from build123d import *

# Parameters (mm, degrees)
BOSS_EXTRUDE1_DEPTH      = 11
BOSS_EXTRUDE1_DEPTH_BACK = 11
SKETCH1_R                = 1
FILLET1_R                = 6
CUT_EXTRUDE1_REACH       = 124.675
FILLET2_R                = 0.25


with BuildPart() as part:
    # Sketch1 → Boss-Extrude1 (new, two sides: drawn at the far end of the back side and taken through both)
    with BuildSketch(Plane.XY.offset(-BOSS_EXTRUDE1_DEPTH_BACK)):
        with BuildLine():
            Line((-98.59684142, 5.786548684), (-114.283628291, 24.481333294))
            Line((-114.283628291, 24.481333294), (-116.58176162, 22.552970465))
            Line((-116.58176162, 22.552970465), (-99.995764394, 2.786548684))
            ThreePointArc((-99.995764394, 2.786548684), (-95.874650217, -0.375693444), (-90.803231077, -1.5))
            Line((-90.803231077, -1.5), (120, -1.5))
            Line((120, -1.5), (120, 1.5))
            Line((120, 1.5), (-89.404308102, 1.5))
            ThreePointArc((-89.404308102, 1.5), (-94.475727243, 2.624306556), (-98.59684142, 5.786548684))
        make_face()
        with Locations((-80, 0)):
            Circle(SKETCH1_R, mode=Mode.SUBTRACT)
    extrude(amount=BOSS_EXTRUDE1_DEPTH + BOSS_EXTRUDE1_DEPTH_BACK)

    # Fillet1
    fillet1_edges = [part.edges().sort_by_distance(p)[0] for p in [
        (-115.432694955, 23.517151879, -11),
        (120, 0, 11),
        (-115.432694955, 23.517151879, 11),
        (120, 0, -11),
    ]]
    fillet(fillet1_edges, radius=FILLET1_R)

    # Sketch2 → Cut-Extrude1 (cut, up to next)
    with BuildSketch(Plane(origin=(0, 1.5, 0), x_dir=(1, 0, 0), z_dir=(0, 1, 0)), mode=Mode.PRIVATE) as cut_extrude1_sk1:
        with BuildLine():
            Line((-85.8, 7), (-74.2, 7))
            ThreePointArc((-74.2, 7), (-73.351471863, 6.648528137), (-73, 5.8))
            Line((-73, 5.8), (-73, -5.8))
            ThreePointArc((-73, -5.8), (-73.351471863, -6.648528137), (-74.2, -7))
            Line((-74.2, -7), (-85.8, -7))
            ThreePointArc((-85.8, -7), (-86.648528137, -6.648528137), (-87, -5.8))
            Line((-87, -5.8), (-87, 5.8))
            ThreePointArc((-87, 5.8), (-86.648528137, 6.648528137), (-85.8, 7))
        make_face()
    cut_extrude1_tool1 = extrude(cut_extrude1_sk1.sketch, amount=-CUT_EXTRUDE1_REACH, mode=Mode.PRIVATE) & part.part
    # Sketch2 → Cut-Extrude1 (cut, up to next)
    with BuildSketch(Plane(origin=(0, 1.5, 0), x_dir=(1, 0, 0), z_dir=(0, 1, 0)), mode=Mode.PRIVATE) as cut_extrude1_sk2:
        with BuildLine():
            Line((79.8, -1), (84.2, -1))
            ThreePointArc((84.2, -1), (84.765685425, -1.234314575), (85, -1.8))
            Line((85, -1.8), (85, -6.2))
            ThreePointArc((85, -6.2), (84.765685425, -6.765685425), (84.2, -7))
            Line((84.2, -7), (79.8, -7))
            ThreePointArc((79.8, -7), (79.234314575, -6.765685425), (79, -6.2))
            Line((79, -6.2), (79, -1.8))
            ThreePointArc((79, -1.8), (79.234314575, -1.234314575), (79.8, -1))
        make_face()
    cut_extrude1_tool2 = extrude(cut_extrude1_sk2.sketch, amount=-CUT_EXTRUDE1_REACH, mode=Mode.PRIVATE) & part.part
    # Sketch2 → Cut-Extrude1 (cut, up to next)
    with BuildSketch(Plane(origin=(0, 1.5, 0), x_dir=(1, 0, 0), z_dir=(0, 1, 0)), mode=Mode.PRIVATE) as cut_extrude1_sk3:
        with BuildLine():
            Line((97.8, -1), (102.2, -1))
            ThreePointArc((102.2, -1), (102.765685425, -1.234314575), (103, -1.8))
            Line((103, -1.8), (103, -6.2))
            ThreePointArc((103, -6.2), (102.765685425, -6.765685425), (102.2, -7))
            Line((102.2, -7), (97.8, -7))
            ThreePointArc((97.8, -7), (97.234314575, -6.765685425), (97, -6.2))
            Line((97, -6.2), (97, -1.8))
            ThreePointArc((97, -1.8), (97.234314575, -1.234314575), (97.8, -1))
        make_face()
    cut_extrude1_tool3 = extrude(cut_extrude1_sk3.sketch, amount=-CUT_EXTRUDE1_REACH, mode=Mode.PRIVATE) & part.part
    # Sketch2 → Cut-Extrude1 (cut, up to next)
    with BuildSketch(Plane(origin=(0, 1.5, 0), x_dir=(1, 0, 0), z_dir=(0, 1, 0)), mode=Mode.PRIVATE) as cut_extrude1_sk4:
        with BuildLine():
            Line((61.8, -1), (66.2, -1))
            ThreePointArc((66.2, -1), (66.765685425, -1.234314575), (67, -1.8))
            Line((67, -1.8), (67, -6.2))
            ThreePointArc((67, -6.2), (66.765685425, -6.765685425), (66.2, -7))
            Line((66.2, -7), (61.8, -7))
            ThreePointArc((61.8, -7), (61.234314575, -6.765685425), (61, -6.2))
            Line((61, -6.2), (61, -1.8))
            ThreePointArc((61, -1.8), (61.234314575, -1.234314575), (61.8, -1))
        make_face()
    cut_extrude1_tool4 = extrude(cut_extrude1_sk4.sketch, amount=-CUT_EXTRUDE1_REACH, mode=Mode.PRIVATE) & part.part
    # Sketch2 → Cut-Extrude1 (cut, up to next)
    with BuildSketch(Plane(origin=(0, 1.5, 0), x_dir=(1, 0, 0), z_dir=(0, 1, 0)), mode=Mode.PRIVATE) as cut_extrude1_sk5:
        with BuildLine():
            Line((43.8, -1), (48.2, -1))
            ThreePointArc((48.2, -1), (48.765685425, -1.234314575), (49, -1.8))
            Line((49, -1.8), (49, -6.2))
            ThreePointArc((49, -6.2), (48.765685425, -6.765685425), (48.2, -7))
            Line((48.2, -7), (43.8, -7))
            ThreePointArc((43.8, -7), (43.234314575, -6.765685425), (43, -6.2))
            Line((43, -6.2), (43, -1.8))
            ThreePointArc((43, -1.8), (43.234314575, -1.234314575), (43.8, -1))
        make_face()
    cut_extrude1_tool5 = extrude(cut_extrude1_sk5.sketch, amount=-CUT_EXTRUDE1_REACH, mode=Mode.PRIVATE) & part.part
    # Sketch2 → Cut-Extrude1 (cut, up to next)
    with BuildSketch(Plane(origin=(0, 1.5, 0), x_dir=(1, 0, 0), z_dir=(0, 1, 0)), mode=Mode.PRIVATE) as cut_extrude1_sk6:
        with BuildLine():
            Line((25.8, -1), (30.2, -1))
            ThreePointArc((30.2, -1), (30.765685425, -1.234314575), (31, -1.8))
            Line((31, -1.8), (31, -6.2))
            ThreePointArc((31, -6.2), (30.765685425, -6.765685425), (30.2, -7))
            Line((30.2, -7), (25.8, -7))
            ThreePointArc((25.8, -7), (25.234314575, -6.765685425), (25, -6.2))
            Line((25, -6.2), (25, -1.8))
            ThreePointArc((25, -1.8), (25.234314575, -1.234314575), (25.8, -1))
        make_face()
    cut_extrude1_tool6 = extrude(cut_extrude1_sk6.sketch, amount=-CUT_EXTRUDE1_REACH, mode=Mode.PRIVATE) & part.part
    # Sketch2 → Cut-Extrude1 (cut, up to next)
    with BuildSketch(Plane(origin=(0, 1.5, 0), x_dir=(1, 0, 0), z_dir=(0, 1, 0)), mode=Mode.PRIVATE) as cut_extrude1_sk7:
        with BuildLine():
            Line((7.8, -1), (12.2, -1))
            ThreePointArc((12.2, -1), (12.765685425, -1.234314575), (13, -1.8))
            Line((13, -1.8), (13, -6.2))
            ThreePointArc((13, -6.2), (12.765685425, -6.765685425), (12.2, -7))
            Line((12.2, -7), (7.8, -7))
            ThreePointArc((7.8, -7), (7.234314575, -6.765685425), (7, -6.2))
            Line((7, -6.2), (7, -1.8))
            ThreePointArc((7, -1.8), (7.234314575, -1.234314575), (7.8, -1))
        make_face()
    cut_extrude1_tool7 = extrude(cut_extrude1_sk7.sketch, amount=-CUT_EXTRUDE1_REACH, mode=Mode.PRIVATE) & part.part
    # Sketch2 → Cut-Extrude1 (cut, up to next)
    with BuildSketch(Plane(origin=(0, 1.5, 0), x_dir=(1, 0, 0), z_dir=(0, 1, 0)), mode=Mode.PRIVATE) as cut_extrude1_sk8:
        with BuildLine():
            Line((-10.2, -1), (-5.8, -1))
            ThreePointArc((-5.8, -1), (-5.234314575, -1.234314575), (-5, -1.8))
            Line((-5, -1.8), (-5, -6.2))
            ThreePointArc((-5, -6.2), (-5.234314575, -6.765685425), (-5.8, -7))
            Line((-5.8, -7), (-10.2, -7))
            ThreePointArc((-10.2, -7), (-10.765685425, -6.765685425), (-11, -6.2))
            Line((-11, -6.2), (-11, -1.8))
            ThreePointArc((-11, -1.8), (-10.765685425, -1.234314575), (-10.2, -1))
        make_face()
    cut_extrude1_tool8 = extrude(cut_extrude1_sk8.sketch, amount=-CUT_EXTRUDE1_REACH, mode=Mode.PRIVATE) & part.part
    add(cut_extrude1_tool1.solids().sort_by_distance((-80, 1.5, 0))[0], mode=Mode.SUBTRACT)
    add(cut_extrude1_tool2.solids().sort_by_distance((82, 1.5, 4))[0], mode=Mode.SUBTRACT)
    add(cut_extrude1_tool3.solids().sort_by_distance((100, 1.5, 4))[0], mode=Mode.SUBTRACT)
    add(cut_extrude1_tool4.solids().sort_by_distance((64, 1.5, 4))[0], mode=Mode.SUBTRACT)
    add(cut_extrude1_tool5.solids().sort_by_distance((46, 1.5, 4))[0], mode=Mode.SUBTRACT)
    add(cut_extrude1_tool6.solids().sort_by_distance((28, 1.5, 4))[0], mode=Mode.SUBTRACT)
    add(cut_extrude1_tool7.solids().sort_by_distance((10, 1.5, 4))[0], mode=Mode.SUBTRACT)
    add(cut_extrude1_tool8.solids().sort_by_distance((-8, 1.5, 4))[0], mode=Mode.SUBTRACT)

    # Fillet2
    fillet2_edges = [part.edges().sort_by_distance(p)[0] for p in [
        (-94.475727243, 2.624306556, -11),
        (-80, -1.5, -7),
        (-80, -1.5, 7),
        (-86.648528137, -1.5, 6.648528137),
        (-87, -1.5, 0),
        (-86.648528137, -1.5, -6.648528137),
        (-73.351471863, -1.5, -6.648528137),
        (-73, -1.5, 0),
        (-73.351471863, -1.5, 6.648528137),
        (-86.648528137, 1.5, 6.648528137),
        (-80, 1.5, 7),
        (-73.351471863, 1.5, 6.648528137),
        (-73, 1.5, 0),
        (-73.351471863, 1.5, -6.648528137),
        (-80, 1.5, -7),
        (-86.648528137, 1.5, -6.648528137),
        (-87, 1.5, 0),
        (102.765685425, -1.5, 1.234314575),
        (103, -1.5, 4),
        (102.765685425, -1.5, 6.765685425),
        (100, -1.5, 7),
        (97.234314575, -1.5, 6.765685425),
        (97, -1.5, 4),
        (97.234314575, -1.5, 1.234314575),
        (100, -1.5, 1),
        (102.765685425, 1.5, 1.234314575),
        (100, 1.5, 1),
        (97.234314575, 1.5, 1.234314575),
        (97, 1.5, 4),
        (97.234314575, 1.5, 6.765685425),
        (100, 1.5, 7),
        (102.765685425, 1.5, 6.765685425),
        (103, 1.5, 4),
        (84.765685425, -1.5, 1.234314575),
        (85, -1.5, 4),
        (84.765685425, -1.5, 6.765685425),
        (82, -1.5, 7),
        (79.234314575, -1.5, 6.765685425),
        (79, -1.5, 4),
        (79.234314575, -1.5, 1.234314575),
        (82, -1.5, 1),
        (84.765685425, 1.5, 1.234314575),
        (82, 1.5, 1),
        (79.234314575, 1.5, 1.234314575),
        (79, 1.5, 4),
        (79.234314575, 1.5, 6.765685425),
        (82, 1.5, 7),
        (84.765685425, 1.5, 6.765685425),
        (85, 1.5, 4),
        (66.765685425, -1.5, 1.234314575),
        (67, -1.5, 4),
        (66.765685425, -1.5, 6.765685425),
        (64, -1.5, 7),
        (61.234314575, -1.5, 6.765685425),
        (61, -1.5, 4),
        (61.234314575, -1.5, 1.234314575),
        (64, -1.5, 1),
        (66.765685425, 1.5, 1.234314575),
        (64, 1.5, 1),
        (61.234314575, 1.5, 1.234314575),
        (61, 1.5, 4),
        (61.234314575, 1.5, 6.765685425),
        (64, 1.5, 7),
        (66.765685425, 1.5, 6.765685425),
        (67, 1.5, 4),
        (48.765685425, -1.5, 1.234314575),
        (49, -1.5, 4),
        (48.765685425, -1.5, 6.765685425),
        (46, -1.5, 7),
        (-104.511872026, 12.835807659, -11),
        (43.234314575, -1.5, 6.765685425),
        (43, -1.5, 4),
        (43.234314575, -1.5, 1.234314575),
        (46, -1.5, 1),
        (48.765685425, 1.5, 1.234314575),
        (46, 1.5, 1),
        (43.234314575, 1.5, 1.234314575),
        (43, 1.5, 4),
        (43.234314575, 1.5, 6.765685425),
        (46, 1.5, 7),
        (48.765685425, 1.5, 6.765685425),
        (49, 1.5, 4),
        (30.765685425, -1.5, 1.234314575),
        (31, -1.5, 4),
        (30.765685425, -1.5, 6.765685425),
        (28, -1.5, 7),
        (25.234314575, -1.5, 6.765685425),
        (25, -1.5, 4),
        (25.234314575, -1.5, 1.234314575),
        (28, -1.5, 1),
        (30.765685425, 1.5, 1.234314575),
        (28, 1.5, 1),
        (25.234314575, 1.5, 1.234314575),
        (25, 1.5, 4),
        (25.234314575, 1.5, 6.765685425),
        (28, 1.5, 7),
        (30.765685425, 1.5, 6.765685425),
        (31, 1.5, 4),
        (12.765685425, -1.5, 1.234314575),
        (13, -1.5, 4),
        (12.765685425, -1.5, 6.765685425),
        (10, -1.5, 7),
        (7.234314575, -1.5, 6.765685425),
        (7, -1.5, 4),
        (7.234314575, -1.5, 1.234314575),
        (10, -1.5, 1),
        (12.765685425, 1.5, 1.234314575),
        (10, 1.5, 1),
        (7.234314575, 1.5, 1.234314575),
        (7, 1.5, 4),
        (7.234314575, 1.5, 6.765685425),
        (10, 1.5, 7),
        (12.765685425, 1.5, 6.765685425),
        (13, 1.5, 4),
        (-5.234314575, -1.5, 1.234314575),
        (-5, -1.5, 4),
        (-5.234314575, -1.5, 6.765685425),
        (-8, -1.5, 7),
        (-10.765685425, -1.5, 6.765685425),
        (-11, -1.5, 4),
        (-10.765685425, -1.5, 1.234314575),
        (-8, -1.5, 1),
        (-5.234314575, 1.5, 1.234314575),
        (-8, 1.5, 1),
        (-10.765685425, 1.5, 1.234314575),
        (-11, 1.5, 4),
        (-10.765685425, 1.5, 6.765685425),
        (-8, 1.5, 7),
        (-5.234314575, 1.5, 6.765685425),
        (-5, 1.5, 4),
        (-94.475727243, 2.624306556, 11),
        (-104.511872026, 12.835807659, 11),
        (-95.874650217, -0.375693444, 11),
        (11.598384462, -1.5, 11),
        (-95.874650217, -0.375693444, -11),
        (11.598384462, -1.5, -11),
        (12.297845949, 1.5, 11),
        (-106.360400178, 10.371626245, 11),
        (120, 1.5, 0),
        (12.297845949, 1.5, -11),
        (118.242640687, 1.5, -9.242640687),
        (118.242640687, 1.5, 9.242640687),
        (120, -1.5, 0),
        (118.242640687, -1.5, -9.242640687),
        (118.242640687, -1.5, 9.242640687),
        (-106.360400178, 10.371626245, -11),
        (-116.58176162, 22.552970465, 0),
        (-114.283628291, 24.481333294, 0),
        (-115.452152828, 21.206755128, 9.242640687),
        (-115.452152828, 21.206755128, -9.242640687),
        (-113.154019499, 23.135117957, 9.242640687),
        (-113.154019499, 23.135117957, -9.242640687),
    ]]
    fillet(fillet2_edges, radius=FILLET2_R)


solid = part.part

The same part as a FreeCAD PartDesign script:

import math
import FreeCAD as App
import Part
import Sketcher
Q = App.Units.Quantity


def edges_at(feature, points):
    """Names of the edges that pass closest to the given points."""
    edges = feature.Shape.Edges
    near = lambda p: min(range(len(edges)), key=lambda i: edges[i].distToShape(Part.Vertex(*p))[0])
    return sorted({f"Edge{near(p) + 1}" for p in points})

doc = App.newDocument("Part")
body = doc.addObject("PartDesign::Body", "Body")

# Sketch on XY plane
sketch1 = doc.addObject("Sketcher::SketchObject", "Sketch")
body.addObject(sketch1)
sketch1.AttachmentSupport = (doc.XY_Plane, [""])
sketch1.MapMode = "FlatFace"
sketch1.addGeometry([
    Part.LineSegment(App.Vector(-98.6, 5.8, 0), App.Vector(-114.3, 24.5, 0)),  # 0
    Part.LineSegment(App.Vector(-114.3, 24.5, 0), App.Vector(-116.6, 22.6, 0)),  # 1
    Part.LineSegment(App.Vector(-116.6, 22.6, 0), App.Vector(-100, 2.8, 0)),  # 2
    Part.ArcOfCircle(Part.Circle(App.Vector(-90.8, 10.5, 0), App.Vector(0, 0, 1), 12), math.radians(-140), math.radians(-90)),  # 3
    Part.LineSegment(App.Vector(-90.8, -1.5, 0), App.Vector(120, -1.5, 0)),  # 4
    Part.LineSegment(App.Vector(120, -1.5, 0), App.Vector(120, 1.5, 0)),  # 5
    Part.LineSegment(App.Vector(120, 1.5, 0), App.Vector(-89.4, 1.5, 0)),  # 6
    Part.ArcOfCircle(Part.Circle(App.Vector(-89.4, 13.5, 0), App.Vector(0, 0, 1), 12), math.radians(-140), math.radians(-90)),  # 7
    Part.Circle(App.Vector(-80, 0, 0), App.Vector(0, 0, 1), 1),  # 8
], False)
sketch1.addConstraint([
    Sketcher.Constraint("Coincident", 0, 2, 1, 1),
    Sketcher.Constraint("Coincident", 1, 2, 2, 1),
    Sketcher.Constraint("Tangent", 2, 2, 3, 1),
    Sketcher.Constraint("Tangent", 3, 2, 4, 1),
    Sketcher.Constraint("Coincident", 4, 2, 5, 1),
    Sketcher.Constraint("Coincident", 5, 2, 6, 1),
    Sketcher.Constraint("Tangent", 6, 2, 7, 2),
    Sketcher.Constraint("Tangent", 7, 1, 0, 1),
    Sketcher.Constraint("Horizontal", 4),
    Sketcher.Constraint("Vertical", 5),
    Sketcher.Constraint("Horizontal", 6),
    Sketcher.Constraint("Equal", 3, 7),
    Sketcher.Constraint("PointOnObject", 8, 3, -1),
    Sketcher.Constraint("Perpendicular", 0, 1),
    Sketcher.Constraint("Perpendicular", 1, 2),
    Sketcher.Constraint("Diameter", 8, Q("2 mm")),
    Sketcher.Constraint("Radius", 3, Q("12 mm")),
    Sketcher.Constraint("DistanceY", 5, 1, 5, 2, Q("3 mm")),
    Sketcher.Constraint("Angle", 0, Q("130 deg")),
    Sketcher.Constraint("Distance", 1, Q("3 mm")),
    Sketcher.Constraint("DistanceX", 8, 3, -1, 1, Q("80 mm")),
    Sketcher.Constraint("DistanceX", -1, 1, 4, 2, Q("120 mm")),
    Sketcher.Constraint("DistanceY", -1, 1, 3, 3, Q("10.5 mm")),
    Sketcher.Constraint("DistanceX", 4, 1, 4, 2, Q("210.803231 mm")),
    Sketcher.Constraint("Distance", 0, Q("24.404308 mm")),
])
pad1 = doc.addObject("PartDesign::Pad", "Pad")
body.addObject(pad1)
pad1.Profile = sketch1
pad1.Type = "TwoLengths"
pad1.Length = 11
pad1.Length2 = 11
doc.recompute()

fillet = doc.addObject("PartDesign::Fillet", "Fillet")
body.addObject(fillet)
fillet.Base = (pad1, edges_at(pad1, [
    (-115.433, 23.517, -11),
    (120, 0, 11),
    (-115.433, 23.517, 11),
    (120, 0, -11),
]))
fillet.Radius = 6

# Sketch on XZ plane
sketch2 = doc.addObject("Sketcher::SketchObject", "Sketch001")
body.addObject(sketch2)
sketch2.AttachmentSupport = (doc.XZ_Plane, [""])
sketch2.MapMode = "FlatFace"
sketch2.AttachmentOffset = App.Placement(App.Vector(0, 0, -1.5), App.Rotation())
sketch2.addGeometry([
    Part.LineSegment(App.Vector(-74.2, -7, 0), App.Vector(-85.8, -7, 0)),  # 0
    Part.ArcOfCircle(Part.Circle(App.Vector(-85.8, -5.8, 0), App.Vector(0, 0, 1), 1.2), math.radians(-180), math.radians(-90)),  # 1
    Part.LineSegment(App.Vector(-87, -5.8, 0), App.Vector(-87, 5.8, 0)),  # 2
    Part.ArcOfCircle(Part.Circle(App.Vector(-85.8, 5.8, 0), App.Vector(0, 0, 1), 1.2), math.radians(90), math.radians(180)),  # 3
    Part.LineSegment(App.Vector(-85.8, 7, 0), App.Vector(-74.2, 7, 0)),  # 4
    Part.ArcOfCircle(Part.Circle(App.Vector(-74.2, 5.8, 0), App.Vector(0, 0, 1), 1.2), math.radians(0), math.radians(90)),  # 5
    Part.LineSegment(App.Vector(-73, 5.8, 0), App.Vector(-73, -5.8, 0)),  # 6
    Part.ArcOfCircle(Part.Circle(App.Vector(-74.2, -5.8, 0), App.Vector(0, 0, 1), 1.2), math.radians(-90), math.radians(0)),  # 7
], False)
sketch2.addConstraint([
    Sketcher.Constraint("Tangent", 0, 2, 1, 2),
    Sketcher.Constraint("Tangent", 1, 1, 2, 1),
    Sketcher.Constraint("Tangent", 2, 2, 3, 2),
    Sketcher.Constraint("Tangent", 3, 1, 4, 1),
    Sketcher.Constraint("Tangent", 4, 2, 5, 2),
    Sketcher.Constraint("Tangent", 5, 1, 6, 1),
    Sketcher.Constraint("Tangent", 6, 2, 7, 2),
    Sketcher.Constraint("Tangent", 7, 1, 0, 1),
    Sketcher.Constraint("Horizontal", 0),
    Sketcher.Constraint("Vertical", 2),
    Sketcher.Constraint("Horizontal", 4),
    Sketcher.Constraint("Vertical", 6),
    Sketcher.Constraint("Equal", 1, 3),
    Sketcher.Constraint("Equal", 3, 5),
    Sketcher.Constraint("Equal", 5, 7),
    Sketcher.Constraint("Equal", 4, 2),
    Sketcher.Constraint("Radius", 1, Q("1.2 mm")),
    Sketcher.Constraint("DistanceX", 0, 2, 0, 1, Q("11.6 mm")),
    Sketcher.Constraint("DistanceY", 0, 2, -1, 1, Q("7 mm")),
    Sketcher.Constraint("DistanceX", 1, 1, -1, 1, Q("87 mm")),
])
pocket1 = doc.addObject("PartDesign::Pocket", "Pocket")
body.addObject(pocket1)
pocket1.Profile = sketch2
pocket1.Type = "UpToFirst"
pocket1.Reversed = True

# Sketch on XZ plane
sketch3 = doc.addObject("Sketcher::SketchObject", "Sketch002")
body.addObject(sketch3)
sketch3.AttachmentSupport = (doc.XZ_Plane, [""])
sketch3.MapMode = "FlatFace"
sketch3.AttachmentOffset = App.Placement(App.Vector(0, 0, -1.5), App.Rotation())
sketch3.addGeometry([
    Part.LineSegment(App.Vector(84.2, 1, 0), App.Vector(79.8, 1, 0)),  # 0
    Part.ArcOfCircle(Part.Circle(App.Vector(79.8, 1.8, 0), App.Vector(0, 0, 1), 0.8), math.radians(180), math.radians(270)),  # 1
    Part.LineSegment(App.Vector(79, 1.8, 0), App.Vector(79, 6.2, 0)),  # 2
    Part.ArcOfCircle(Part.Circle(App.Vector(79.8, 6.2, 0), App.Vector(0, 0, 1), 0.8), math.radians(90), math.radians(180)),  # 3
    Part.LineSegment(App.Vector(79.8, 7, 0), App.Vector(84.2, 7, 0)),  # 4
    Part.ArcOfCircle(Part.Circle(App.Vector(84.2, 6.2, 0), App.Vector(0, 0, 1), 0.8), math.radians(0), math.radians(90)),  # 5
    Part.LineSegment(App.Vector(85, 6.2, 0), App.Vector(85, 1.8, 0)),  # 6
    Part.ArcOfCircle(Part.Circle(App.Vector(84.2, 1.8, 0), App.Vector(0, 0, 1), 0.8), math.radians(-90), math.radians(0)),  # 7
], False)
sketch3.addConstraint([
    Sketcher.Constraint("Tangent", 0, 2, 1, 2),
    Sketcher.Constraint("Tangent", 1, 1, 2, 1),
    Sketcher.Constraint("Tangent", 2, 2, 3, 2),
    Sketcher.Constraint("Tangent", 3, 1, 4, 1),
    Sketcher.Constraint("Tangent", 4, 2, 5, 2),
    Sketcher.Constraint("Tangent", 5, 1, 6, 1),
    Sketcher.Constraint("Tangent", 6, 2, 7, 2),
    Sketcher.Constraint("Tangent", 7, 1, 0, 1),
    Sketcher.Constraint("Horizontal", 0),
    Sketcher.Constraint("Vertical", 2),
    Sketcher.Constraint("Horizontal", 4),
    Sketcher.Constraint("Vertical", 6),
    Sketcher.Constraint("Equal", 1, 3),
    Sketcher.Constraint("Equal", 3, 5),
    Sketcher.Constraint("Equal", 5, 7),
    Sketcher.Constraint("Equal", 4, 2),
    Sketcher.Constraint("Radius", 1, Q("0.8 mm")),
    Sketcher.Constraint("DistanceX", 0, 2, 0, 1, Q("4.4 mm")),
    Sketcher.Constraint("DistanceY", -1, 1, 0, 2, Q("1 mm")),
    Sketcher.Constraint("DistanceX", -1, 1, 1, 1, Q("79 mm")),
])
pocket2 = doc.addObject("PartDesign::Pocket", "Pocket001")
body.addObject(pocket2)
pocket2.Profile = sketch3
pocket2.Type = "UpToFirst"
pocket2.Reversed = True

# Sketch on XZ plane
sketch4 = doc.addObject("Sketcher::SketchObject", "Sketch003")
body.addObject(sketch4)
sketch4.AttachmentSupport = (doc.XZ_Plane, [""])
sketch4.MapMode = "FlatFace"
sketch4.AttachmentOffset = App.Placement(App.Vector(0, 0, -1.5), App.Rotation())
sketch4.addGeometry([
    Part.LineSegment(App.Vector(102.2, 1, 0), App.Vector(97.8, 1, 0)),  # 0
    Part.ArcOfCircle(Part.Circle(App.Vector(97.8, 1.8, 0), App.Vector(0, 0, 1), 0.8), math.radians(180), math.radians(270)),  # 1
    Part.LineSegment(App.Vector(97, 1.8, 0), App.Vector(97, 6.2, 0)),  # 2
    Part.ArcOfCircle(Part.Circle(App.Vector(97.8, 6.2, 0), App.Vector(0, 0, 1), 0.8), math.radians(90), math.radians(180)),  # 3
    Part.LineSegment(App.Vector(97.8, 7, 0), App.Vector(102.2, 7, 0)),  # 4
    Part.ArcOfCircle(Part.Circle(App.Vector(102.2, 6.2, 0), App.Vector(0, 0, 1), 0.8), math.radians(0), math.radians(90)),  # 5
    Part.LineSegment(App.Vector(103, 6.2, 0), App.Vector(103, 1.8, 0)),  # 6
    Part.ArcOfCircle(Part.Circle(App.Vector(102.2, 1.8, 0), App.Vector(0, 0, 1), 0.8), math.radians(-90), math.radians(0)),  # 7
], False)
sketch4.addConstraint([
    Sketcher.Constraint("Tangent", 0, 2, 1, 2),
    Sketcher.Constraint("Tangent", 1, 1, 2, 1),
    Sketcher.Constraint("Tangent", 2, 2, 3, 2),
    Sketcher.Constraint("Tangent", 3, 1, 4, 1),
    Sketcher.Constraint("Tangent", 4, 2, 5, 2),
    Sketcher.Constraint("Tangent", 5, 1, 6, 1),
    Sketcher.Constraint("Tangent", 6, 2, 7, 2),
    Sketcher.Constraint("Tangent", 7, 1, 0, 1),
    Sketcher.Constraint("Horizontal", 0),
    Sketcher.Constraint("Vertical", 2),
    Sketcher.Constraint("Horizontal", 4),
    Sketcher.Constraint("Vertical", 6),
    Sketcher.Constraint("Equal", 1, 3),
    Sketcher.Constraint("Equal", 3, 5),
    Sketcher.Constraint("Equal", 5, 7),
    Sketcher.Constraint("Equal", 4, 2),
    Sketcher.Constraint("Radius", 1, Q("0.8 mm")),
    Sketcher.Constraint("DistanceX", 0, 2, 0, 1, Q("4.4 mm")),
    Sketcher.Constraint("DistanceY", -1, 1, 0, 2, Q("1 mm")),
    Sketcher.Constraint("DistanceX", -1, 1, 1, 1, Q("97 mm")),
])
pocket3 = doc.addObject("PartDesign::Pocket", "Pocket002")
body.addObject(pocket3)
pocket3.Profile = sketch4
pocket3.Type = "UpToFirst"
pocket3.Reversed = True

# Sketch on XZ plane
sketch5 = doc.addObject("Sketcher::SketchObject", "Sketch004")
body.addObject(sketch5)
sketch5.AttachmentSupport = (doc.XZ_Plane, [""])
sketch5.MapMode = "FlatFace"
sketch5.AttachmentOffset = App.Placement(App.Vector(0, 0, -1.5), App.Rotation())
sketch5.addGeometry([
    Part.LineSegment(App.Vector(66.2, 1, 0), App.Vector(61.8, 1, 0)),  # 0
    Part.ArcOfCircle(Part.Circle(App.Vector(61.8, 1.8, 0), App.Vector(0, 0, 1), 0.8), math.radians(180), math.radians(270)),  # 1
    Part.LineSegment(App.Vector(61, 1.8, 0), App.Vector(61, 6.2, 0)),  # 2
    Part.ArcOfCircle(Part.Circle(App.Vector(61.8, 6.2, 0), App.Vector(0, 0, 1), 0.8), math.radians(90), math.radians(180)),  # 3
    Part.LineSegment(App.Vector(61.8, 7, 0), App.Vector(66.2, 7, 0)),  # 4
    Part.ArcOfCircle(Part.Circle(App.Vector(66.2, 6.2, 0), App.Vector(0, 0, 1), 0.8), math.radians(0), math.radians(90)),  # 5
    Part.LineSegment(App.Vector(67, 6.2, 0), App.Vector(67, 1.8, 0)),  # 6
    Part.ArcOfCircle(Part.Circle(App.Vector(66.2, 1.8, 0), App.Vector(0, 0, 1), 0.8), math.radians(-90), math.radians(0)),  # 7
], False)
sketch5.addConstraint([
    Sketcher.Constraint("Tangent", 0, 2, 1, 2),
    Sketcher.Constraint("Tangent", 1, 1, 2, 1),
    Sketcher.Constraint("Tangent", 2, 2, 3, 2),
    Sketcher.Constraint("Tangent", 3, 1, 4, 1),
    Sketcher.Constraint("Tangent", 4, 2, 5, 2),
    Sketcher.Constraint("Tangent", 5, 1, 6, 1),
    Sketcher.Constraint("Tangent", 6, 2, 7, 2),
    Sketcher.Constraint("Tangent", 7, 1, 0, 1),
    Sketcher.Constraint("Horizontal", 0),
    Sketcher.Constraint("Vertical", 2),
    Sketcher.Constraint("Horizontal", 4),
    Sketcher.Constraint("Vertical", 6),
    Sketcher.Constraint("Equal", 1, 3),
    Sketcher.Constraint("Equal", 3, 5),
    Sketcher.Constraint("Equal", 5, 7),
    Sketcher.Constraint("Equal", 4, 2),
    Sketcher.Constraint("Radius", 1, Q("0.8 mm")),
    Sketcher.Constraint("DistanceX", 0, 2, 0, 1, Q("4.4 mm")),
    Sketcher.Constraint("DistanceY", -1, 1, 0, 2, Q("1 mm")),
    Sketcher.Constraint("DistanceX", -1, 1, 1, 1, Q("61 mm")),
])
pocket4 = doc.addObject("PartDesign::Pocket", "Pocket003")
body.addObject(pocket4)
pocket4.Profile = sketch5
pocket4.Type = "UpToFirst"
pocket4.Reversed = True

# Sketch on XZ plane
sketch6 = doc.addObject("Sketcher::SketchObject", "Sketch005")
body.addObject(sketch6)
sketch6.AttachmentSupport = (doc.XZ_Plane, [""])
sketch6.MapMode = "FlatFace"
sketch6.AttachmentOffset = App.Placement(App.Vector(0, 0, -1.5), App.Rotation())
sketch6.addGeometry([
    Part.LineSegment(App.Vector(48.2, 1, 0), App.Vector(43.8, 1, 0)),  # 0
    Part.ArcOfCircle(Part.Circle(App.Vector(43.8, 1.8, 0), App.Vector(0, 0, 1), 0.8), math.radians(180), math.radians(270)),  # 1
    Part.LineSegment(App.Vector(43, 1.8, 0), App.Vector(43, 6.2, 0)),  # 2
    Part.ArcOfCircle(Part.Circle(App.Vector(43.8, 6.2, 0), App.Vector(0, 0, 1), 0.8), math.radians(90), math.radians(180)),  # 3
    Part.LineSegment(App.Vector(43.8, 7, 0), App.Vector(48.2, 7, 0)),  # 4
    Part.ArcOfCircle(Part.Circle(App.Vector(48.2, 6.2, 0), App.Vector(0, 0, 1), 0.8), math.radians(0), math.radians(90)),  # 5
    Part.LineSegment(App.Vector(49, 6.2, 0), App.Vector(49, 1.8, 0)),  # 6
    Part.ArcOfCircle(Part.Circle(App.Vector(48.2, 1.8, 0), App.Vector(0, 0, 1), 0.8), math.radians(-90), math.radians(0)),  # 7
], False)
sketch6.addConstraint([
    Sketcher.Constraint("Tangent", 0, 2, 1, 2),
    Sketcher.Constraint("Tangent", 1, 1, 2, 1),
    Sketcher.Constraint("Tangent", 2, 2, 3, 2),
    Sketcher.Constraint("Tangent", 3, 1, 4, 1),
    Sketcher.Constraint("Tangent", 4, 2, 5, 2),
    Sketcher.Constraint("Tangent", 5, 1, 6, 1),
    Sketcher.Constraint("Tangent", 6, 2, 7, 2),
    Sketcher.Constraint("Tangent", 7, 1, 0, 1),
    Sketcher.Constraint("Horizontal", 0),
    Sketcher.Constraint("Vertical", 2),
    Sketcher.Constraint("Horizontal", 4),
    Sketcher.Constraint("Vertical", 6),
    Sketcher.Constraint("Equal", 1, 3),
    Sketcher.Constraint("Equal", 3, 5),
    Sketcher.Constraint("Equal", 5, 7),
    Sketcher.Constraint("Equal", 4, 2),
    Sketcher.Constraint("Radius", 1, Q("0.8 mm")),
    Sketcher.Constraint("DistanceX", 0, 2, 0, 1, Q("4.4 mm")),
    Sketcher.Constraint("DistanceY", -1, 1, 0, 2, Q("1 mm")),
    Sketcher.Constraint("DistanceX", -1, 1, 1, 1, Q("43 mm")),
])
pocket5 = doc.addObject("PartDesign::Pocket", "Pocket004")
body.addObject(pocket5)
pocket5.Profile = sketch6
pocket5.Type = "UpToFirst"
pocket5.Reversed = True

# Sketch on XZ plane
sketch7 = doc.addObject("Sketcher::SketchObject", "Sketch006")
body.addObject(sketch7)
sketch7.AttachmentSupport = (doc.XZ_Plane, [""])
sketch7.MapMode = "FlatFace"
sketch7.AttachmentOffset = App.Placement(App.Vector(0, 0, -1.5), App.Rotation())
sketch7.addGeometry([
    Part.LineSegment(App.Vector(30.2, 1, 0), App.Vector(25.8, 1, 0)),  # 0
    Part.ArcOfCircle(Part.Circle(App.Vector(25.8, 1.8, 0), App.Vector(0, 0, 1), 0.8), math.radians(180), math.radians(270)),  # 1
    Part.LineSegment(App.Vector(25, 1.8, 0), App.Vector(25, 6.2, 0)),  # 2
    Part.ArcOfCircle(Part.Circle(App.Vector(25.8, 6.2, 0), App.Vector(0, 0, 1), 0.8), math.radians(90), math.radians(180)),  # 3
    Part.LineSegment(App.Vector(25.8, 7, 0), App.Vector(30.2, 7, 0)),  # 4
    Part.ArcOfCircle(Part.Circle(App.Vector(30.2, 6.2, 0), App.Vector(0, 0, 1), 0.8), math.radians(0), math.radians(90)),  # 5
    Part.LineSegment(App.Vector(31, 6.2, 0), App.Vector(31, 1.8, 0)),  # 6
    Part.ArcOfCircle(Part.Circle(App.Vector(30.2, 1.8, 0), App.Vector(0, 0, 1), 0.8), math.radians(-90), math.radians(0)),  # 7
], False)
sketch7.addConstraint([
    Sketcher.Constraint("Tangent", 0, 2, 1, 2),
    Sketcher.Constraint("Tangent", 1, 1, 2, 1),
    Sketcher.Constraint("Tangent", 2, 2, 3, 2),
    Sketcher.Constraint("Tangent", 3, 1, 4, 1),
    Sketcher.Constraint("Tangent", 4, 2, 5, 2),
    Sketcher.Constraint("Tangent", 5, 1, 6, 1),
    Sketcher.Constraint("Tangent", 6, 2, 7, 2),
    Sketcher.Constraint("Tangent", 7, 1, 0, 1),
    Sketcher.Constraint("Horizontal", 0),
    Sketcher.Constraint("Vertical", 2),
    Sketcher.Constraint("Horizontal", 4),
    Sketcher.Constraint("Vertical", 6),
    Sketcher.Constraint("Equal", 1, 3),
    Sketcher.Constraint("Equal", 3, 5),
    Sketcher.Constraint("Equal", 5, 7),
    Sketcher.Constraint("Equal", 4, 2),
    Sketcher.Constraint("Radius", 1, Q("0.8 mm")),
    Sketcher.Constraint("DistanceX", 0, 2, 0, 1, Q("4.4 mm")),
    Sketcher.Constraint("DistanceY", -1, 1, 0, 2, Q("1 mm")),
    Sketcher.Constraint("DistanceX", -1, 1, 1, 1, Q("25 mm")),
])
pocket6 = doc.addObject("PartDesign::Pocket", "Pocket005")
body.addObject(pocket6)
pocket6.Profile = sketch7
pocket6.Type = "UpToFirst"
pocket6.Reversed = True

# Sketch on XZ plane
sketch8 = doc.addObject("Sketcher::SketchObject", "Sketch007")
body.addObject(sketch8)
sketch8.AttachmentSupport = (doc.XZ_Plane, [""])
sketch8.MapMode = "FlatFace"
sketch8.AttachmentOffset = App.Placement(App.Vector(0, 0, -1.5), App.Rotation())
sketch8.addGeometry([
    Part.LineSegment(App.Vector(12.2, 1, 0), App.Vector(7.8, 1, 0)),  # 0
    Part.ArcOfCircle(Part.Circle(App.Vector(7.8, 1.8, 0), App.Vector(0, 0, 1), 0.8), math.radians(180), math.radians(270)),  # 1
    Part.LineSegment(App.Vector(7, 1.8, 0), App.Vector(7, 6.2, 0)),  # 2
    Part.ArcOfCircle(Part.Circle(App.Vector(7.8, 6.2, 0), App.Vector(0, 0, 1), 0.8), math.radians(90), math.radians(180)),  # 3
    Part.LineSegment(App.Vector(7.8, 7, 0), App.Vector(12.2, 7, 0)),  # 4
    Part.ArcOfCircle(Part.Circle(App.Vector(12.2, 6.2, 0), App.Vector(0, 0, 1), 0.8), math.radians(0), math.radians(90)),  # 5
    Part.LineSegment(App.Vector(13, 6.2, 0), App.Vector(13, 1.8, 0)),  # 6
    Part.ArcOfCircle(Part.Circle(App.Vector(12.2, 1.8, 0), App.Vector(0, 0, 1), 0.8), math.radians(-90), math.radians(0)),  # 7
], False)
sketch8.addConstraint([
    Sketcher.Constraint("Tangent", 0, 2, 1, 2),
    Sketcher.Constraint("Tangent", 1, 1, 2, 1),
    Sketcher.Constraint("Tangent", 2, 2, 3, 2),
    Sketcher.Constraint("Tangent", 3, 1, 4, 1),
    Sketcher.Constraint("Tangent", 4, 2, 5, 2),
    Sketcher.Constraint("Tangent", 5, 1, 6, 1),
    Sketcher.Constraint("Tangent", 6, 2, 7, 2),
    Sketcher.Constraint("Tangent", 7, 1, 0, 1),
    Sketcher.Constraint("Horizontal", 0),
    Sketcher.Constraint("Vertical", 2),
    Sketcher.Constraint("Horizontal", 4),
    Sketcher.Constraint("Vertical", 6),
    Sketcher.Constraint("Equal", 1, 3),
    Sketcher.Constraint("Equal", 3, 5),
    Sketcher.Constraint("Equal", 5, 7),
    Sketcher.Constraint("Equal", 4, 2),
    Sketcher.Constraint("Radius", 1, Q("0.8 mm")),
    Sketcher.Constraint("DistanceX", 0, 2, 0, 1, Q("4.4 mm")),
    Sketcher.Constraint("DistanceY", -1, 1, 0, 2, Q("1 mm")),
    Sketcher.Constraint("DistanceX", -1, 1, 1, 1, Q("7 mm")),
])
pocket7 = doc.addObject("PartDesign::Pocket", "Pocket006")
body.addObject(pocket7)
pocket7.Profile = sketch8
pocket7.Type = "UpToFirst"
pocket7.Reversed = True

# Sketch on XZ plane
sketch9 = doc.addObject("Sketcher::SketchObject", "Sketch008")
body.addObject(sketch9)
sketch9.AttachmentSupport = (doc.XZ_Plane, [""])
sketch9.MapMode = "FlatFace"
sketch9.AttachmentOffset = App.Placement(App.Vector(0, 0, -1.5), App.Rotation())
sketch9.addGeometry([
    Part.LineSegment(App.Vector(-5.8, 1, 0), App.Vector(-10.2, 1, 0)),  # 0
    Part.ArcOfCircle(Part.Circle(App.Vector(-10.2, 1.8, 0), App.Vector(0, 0, 1), 0.8), math.radians(180), math.radians(270)),  # 1
    Part.LineSegment(App.Vector(-11, 1.8, 0), App.Vector(-11, 6.2, 0)),  # 2
    Part.ArcOfCircle(Part.Circle(App.Vector(-10.2, 6.2, 0), App.Vector(0, 0, 1), 0.8), math.radians(90), math.radians(180)),  # 3
    Part.LineSegment(App.Vector(-10.2, 7, 0), App.Vector(-5.8, 7, 0)),  # 4
    Part.ArcOfCircle(Part.Circle(App.Vector(-5.8, 6.2, 0), App.Vector(0, 0, 1), 0.8), math.radians(0), math.radians(90)),  # 5
    Part.LineSegment(App.Vector(-5, 6.2, 0), App.Vector(-5, 1.8, 0)),  # 6
    Part.ArcOfCircle(Part.Circle(App.Vector(-5.8, 1.8, 0), App.Vector(0, 0, 1), 0.8), math.radians(-90), math.radians(0)),  # 7
], False)
sketch9.addConstraint([
    Sketcher.Constraint("Tangent", 0, 2, 1, 2),
    Sketcher.Constraint("Tangent", 1, 1, 2, 1),
    Sketcher.Constraint("Tangent", 2, 2, 3, 2),
    Sketcher.Constraint("Tangent", 3, 1, 4, 1),
    Sketcher.Constraint("Tangent", 4, 2, 5, 2),
    Sketcher.Constraint("Tangent", 5, 1, 6, 1),
    Sketcher.Constraint("Tangent", 6, 2, 7, 2),
    Sketcher.Constraint("Tangent", 7, 1, 0, 1),
    Sketcher.Constraint("Horizontal", 0),
    Sketcher.Constraint("Vertical", 2),
    Sketcher.Constraint("Horizontal", 4),
    Sketcher.Constraint("Vertical", 6),
    Sketcher.Constraint("Equal", 1, 3),
    Sketcher.Constraint("Equal", 3, 5),
    Sketcher.Constraint("Equal", 5, 7),
    Sketcher.Constraint("Equal", 4, 2),
    Sketcher.Constraint("Radius", 1, Q("0.8 mm")),
    Sketcher.Constraint("DistanceX", 0, 2, 0, 1, Q("4.4 mm")),
    Sketcher.Constraint("DistanceY", -1, 1, 0, 2, Q("1 mm")),
    Sketcher.Constraint("DistanceX", 1, 1, -1, 1, Q("11 mm")),
])
pocket8 = doc.addObject("PartDesign::Pocket", "Pocket007")
body.addObject(pocket8)
pocket8.Profile = sketch9
pocket8.Type = "UpToFirst"
pocket8.Reversed = True
doc.recompute()

fillet2 = doc.addObject("PartDesign::Fillet", "Fillet001")
body.addObject(fillet2)
fillet2.Base = (pocket8, edges_at(pocket8, [
    (-94.476, 2.624, -11),
    (-80, -1.5, -7),
    (-80, -1.5, 7),
    (-86.649, -1.5, 6.649),
    (-87, -1.5, 0),
    (-86.649, -1.5, -6.649),
    (-73.351, -1.5, -6.649),
    (-73, -1.5, 0),
    (-73.351, -1.5, 6.649),
    (-86.649, 1.5, 6.649),
    (-80, 1.5, 7),
    (-73.351, 1.5, 6.649),
    (-73, 1.5, 0),
    (-73.351, 1.5, -6.649),
    (-80, 1.5, -7),
    (-86.649, 1.5, -6.649),
    (-87, 1.5, 0),
    (102.766, -1.5, 1.234),
    (103, -1.5, 4),
    (102.766, -1.5, 6.766),
    (100, -1.5, 7),
    (97.234, -1.5, 6.766),
    (97, -1.5, 4),
    (97.234, -1.5, 1.234),
    (100, -1.5, 1),
    (102.766, 1.5, 1.234),
    (100, 1.5, 1),
    (97.234, 1.5, 1.234),
    (97, 1.5, 4),
    (97.234, 1.5, 6.766),
    (100, 1.5, 7),
    (102.766, 1.5, 6.766),
    (103, 1.5, 4),
    (84.766, -1.5, 1.234),
    (85, -1.5, 4),
    (84.766, -1.5, 6.766),
    (82, -1.5, 7),
    (79.234, -1.5, 6.766),
    (79, -1.5, 4),
    (79.234, -1.5, 1.234),
    (82, -1.5, 1),
    (84.766, 1.5, 1.234),
    (82, 1.5, 1),
    (79.234, 1.5, 1.234),
    (79, 1.5, 4),
    (79.234, 1.5, 6.766),
    (82, 1.5, 7),
    (84.766, 1.5, 6.766),
    (85, 1.5, 4),
    (66.766, -1.5, 1.234),
    (67, -1.5, 4),
    (66.766, -1.5, 6.766),
    (64, -1.5, 7),
    (61.234, -1.5, 6.766),
    (61, -1.5, 4),
    (61.234, -1.5, 1.234),
    (64, -1.5, 1),
    (66.766, 1.5, 1.234),
    (64, 1.5, 1),
    (61.234, 1.5, 1.234),
    (61, 1.5, 4),
    (61.234, 1.5, 6.766),
    (64, 1.5, 7),
    (66.766, 1.5, 6.766),
    (67, 1.5, 4),
    (48.766, -1.5, 1.234),
    (49, -1.5, 4),
    (48.766, -1.5, 6.766),
    (46, -1.5, 7),
    (-104.512, 12.836, -11),
    (43.234, -1.5, 6.766),
    (43, -1.5, 4),
    (43.234, -1.5, 1.234),
    (46, -1.5, 1),
    (48.766, 1.5, 1.234),
    (46, 1.5, 1),
    (43.234, 1.5, 1.234),
    (43, 1.5, 4),
    (43.234, 1.5, 6.766),
    (46, 1.5, 7),
    (48.766, 1.5, 6.766),
    (49, 1.5, 4),
    (30.766, -1.5, 1.234),
    (31, -1.5, 4),
    (30.766, -1.5, 6.766),
    (28, -1.5, 7),
    (25.234, -1.5, 6.766),
    (25, -1.5, 4),
    (25.234, -1.5, 1.234),
    (28, -1.5, 1),
    (30.766, 1.5, 1.234),
    (28, 1.5, 1),
    (25.234, 1.5, 1.234),
    (25, 1.5, 4),
    (25.234, 1.5, 6.766),
    (28, 1.5, 7),
    (30.766, 1.5, 6.766),
    (31, 1.5, 4),
    (12.766, -1.5, 1.234),
    (13, -1.5, 4),
    (12.766, -1.5, 6.766),
    (10, -1.5, 7),
    (7.234, -1.5, 6.766),
    (7, -1.5, 4),
    (7.234, -1.5, 1.234),
    (10, -1.5, 1),
    (12.766, 1.5, 1.234),
    (10, 1.5, 1),
    (7.234, 1.5, 1.234),
    (7, 1.5, 4),
    (7.234, 1.5, 6.766),
    (10, 1.5, 7),
    (12.766, 1.5, 6.766),
    (13, 1.5, 4),
    (-5.234, -1.5, 1.234),
    (-5, -1.5, 4),
    (-5.234, -1.5, 6.766),
    (-8, -1.5, 7),
    (-10.766, -1.5, 6.766),
    (-11, -1.5, 4),
    (-10.766, -1.5, 1.234),
    (-8, -1.5, 1),
    (-5.234, 1.5, 1.234),
    (-8, 1.5, 1),
    (-10.766, 1.5, 1.234),
    (-11, 1.5, 4),
    (-10.766, 1.5, 6.766),
    (-8, 1.5, 7),
    (-5.234, 1.5, 6.766),
    (-5, 1.5, 4),
    (-94.476, 2.624, 11),
    (-104.512, 12.836, 11),
    (-95.875, -0.376, 11),
    (11.598, -1.5, 11),
    (-95.875, -0.376, -11),
    (11.598, -1.5, -11),
    (12.298, 1.5, 11),
    (-106.36, 10.372, 11),
    (120, 1.5, 0),
    (12.298, 1.5, -11),
    (118.243, 1.5, -9.243),
    (118.243, 1.5, 9.243),
    (120, -1.5, 0),
    (118.243, -1.5, -9.243),
    (118.243, -1.5, 9.243),
    (-106.36, 10.372, -11),
    (-116.582, 22.553, 0),
    (-114.284, 24.481, 0),
    (-115.452, 21.207, 9.243),
    (-115.452, 21.207, -9.243),
    (-113.154, 23.135, 9.243),
    (-113.154, 23.135, -9.243),
]))
fillet2.Radius = 0.25

doc.recompute()
